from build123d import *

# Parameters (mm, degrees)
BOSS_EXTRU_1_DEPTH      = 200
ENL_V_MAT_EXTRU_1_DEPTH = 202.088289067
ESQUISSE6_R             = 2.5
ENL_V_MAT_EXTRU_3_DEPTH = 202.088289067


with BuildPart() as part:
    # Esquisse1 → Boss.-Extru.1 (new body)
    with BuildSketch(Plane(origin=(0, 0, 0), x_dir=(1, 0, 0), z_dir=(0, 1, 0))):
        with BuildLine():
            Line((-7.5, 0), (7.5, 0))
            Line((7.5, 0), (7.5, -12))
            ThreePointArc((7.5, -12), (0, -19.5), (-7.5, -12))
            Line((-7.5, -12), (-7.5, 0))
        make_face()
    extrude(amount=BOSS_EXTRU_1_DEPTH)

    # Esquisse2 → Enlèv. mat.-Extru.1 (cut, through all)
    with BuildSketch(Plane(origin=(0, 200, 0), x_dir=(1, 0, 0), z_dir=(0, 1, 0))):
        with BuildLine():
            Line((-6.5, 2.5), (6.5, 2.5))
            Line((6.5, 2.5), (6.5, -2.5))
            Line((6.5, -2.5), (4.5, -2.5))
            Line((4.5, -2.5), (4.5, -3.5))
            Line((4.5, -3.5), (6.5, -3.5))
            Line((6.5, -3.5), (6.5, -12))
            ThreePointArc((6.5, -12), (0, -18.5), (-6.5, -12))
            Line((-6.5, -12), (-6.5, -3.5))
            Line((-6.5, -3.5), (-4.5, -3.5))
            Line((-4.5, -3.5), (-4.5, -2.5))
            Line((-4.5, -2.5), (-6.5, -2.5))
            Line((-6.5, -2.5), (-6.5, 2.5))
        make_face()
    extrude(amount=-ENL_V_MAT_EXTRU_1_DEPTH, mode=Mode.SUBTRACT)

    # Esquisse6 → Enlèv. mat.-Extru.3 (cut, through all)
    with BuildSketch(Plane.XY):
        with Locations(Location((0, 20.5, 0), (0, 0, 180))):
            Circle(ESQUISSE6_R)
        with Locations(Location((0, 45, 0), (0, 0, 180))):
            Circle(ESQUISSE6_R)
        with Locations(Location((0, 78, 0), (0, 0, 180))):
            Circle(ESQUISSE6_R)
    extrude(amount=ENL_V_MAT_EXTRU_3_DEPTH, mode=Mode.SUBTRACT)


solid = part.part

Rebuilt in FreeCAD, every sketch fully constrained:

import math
import FreeCAD as App
import Part
import Sketcher

V = App.Vector
Q = App.Units.Quantity

doc = App.newDocument("Part")
body = doc.addObject("PartDesign::Body", "Body")

# Sketch on XZ plane
sketch1 = body.newObject("Sketcher::SketchObject", "Sketch")
sketch1.AttachmentSupport = (doc.getObject("XZ_Plane"), [""])
sketch1.MapMode = "FlatFace"
sketch1.addGeometry(Part.LineSegment(V(8, 0, 0), V(-8, 0, 0)), False)
sketch1.addGeometry(Part.LineSegment(V(-8, 0, 0), V(-8, 12, 0)), False)
sketch1.addGeometry(Part.ArcOfCircle(Part.Circle(V(0, 12, 0), V(0, 0, 1), 8), math.radians(0), math.radians(180)), False)
sketch1.addGeometry(Part.LineSegment(V(8, 12, 0), V(8, 0, 0)), False)
sketch1.addConstraint(Sketcher.Constraint("Coincident", 0, 2, 1, 1))
sketch1.addConstraint(Sketcher.Constraint("Tangent", 1, 2, 2, 2))
sketch1.addConstraint(Sketcher.Constraint("Tangent", 2, 1, 3, 1))
sketch1.addConstraint(Sketcher.Constraint("Coincident", 3, 2, 0, 1))
sketch1.addConstraint(Sketcher.Constraint("Horizontal", 0))
sketch1.addConstraint(Sketcher.Constraint("Vertical", 1))
sketch1.addConstraint(Sketcher.Constraint("Vertical", 3))
sketch1.addConstraint(Sketcher.Constraint("Symmetric", 0, 2, 3, 2, -1, 1))
sketch1.addConstraint(Sketcher.Constraint("Radius", 2, Q("7.5 mm")))
sketch1.addConstraint(Sketcher.Constraint("DistanceY", 1, 1, 1, 2, Q("12 mm")))
pad1 = body.newObject("PartDesign::Pad", "Pad")
pad1.Profile = sketch1
pad1.Length = 200
pad1.Reversed = True

# Sketch on XZ plane
sketch2 = body.newObject("Sketcher::SketchObject", "Sketch001")
sketch2.AttachmentSupport = (doc.getObject("XZ_Plane"), [""])
sketch2.MapMode = "FlatFace"
sketch2.AttachmentOffset = App.Placement(V(0, 0, -200), App.Rotation())
sketch2.addGeometry(Part.LineSegment(V(6.5, -2.5, 0), V(-6.5, -2.5, 0)), False)
sketch2.addGeometry(Part.LineSegment(V(-6.5, -2.5, 0), V(-6.5, 2.5, 0)), False)
sketch2.addGeometry(Part.LineSegment(V(-6.5, 2.5, 0), V(-4.5, 2.5, 0)), False)
sketch2.addGeometry(Part.LineSegment(V(-4.5, 2.5, 0), V(-4.5, 3.5, 0)), False)
sketch2.addGeometry(Part.LineSegment(V(-4.5, 3.5, 0), V(-6.5, 3.5, 0)), False)
sketch2.addGeometry(Part.LineSegment(V(-6.5, 3.5, 0), V(-6.5, 12, 0)), False)
sketch2.addGeometry(Part.ArcOfCircle(Part.Circle(V(0, 12, 0), V(0, 0, 1), 6.5), math.radians(0), math.radians(180)), False)
sketch2.addGeometry(Part.LineSegment(V(6.5, 12, 0), V(6.5, 3.5, 0)), False)
sketch2.addGeometry(Part.LineSegment(V(6.5, 3.5, 0), V(4.5, 3.5, 0)), False)
sketch2.addGeometry(Part.LineSegment(V(4.5, 3.5, 0), V(4.5, 2.5, 0)), False)
sketch2.addGeometry(Part.LineSegment(V(4.5, 2.5, 0), V(6.5, 2.5, 0)), False)
sketch2.addGeometry(Part.LineSegment(V(6.5, 2.5, 0), V(6.5, -2.5, 0)), False)
sketch2.addConstraint(Sketcher.Constraint("Coincident", 0, 2, 1, 1))
sketch2.addConstraint(Sketcher.Constraint("Coincident", 1, 2, 2, 1))
sketch2.addConstraint(Sketcher.Constraint("Coincident", 2, 2, 3, 1))
sketch2.addConstraint(Sketcher.Constraint("Coincident", 3, 2, 4, 1))
sketch2.addConstraint(Sketcher.Constraint("Coincident", 4, 2, 5, 1))
sketch2.addConstraint(Sketcher.Constraint("Tangent", 5, 2, 6, 2))
sketch2.addConstraint(Sketcher.Constraint("Tangent", 6, 1, 7, 1))
sketch2.addConstraint(Sketcher.Constraint("Coincident", 7, 2, 8, 1))
sketch2.addConstraint(Sketcher.Constraint("Coincident", 8, 2, 9, 1))
sketch2.addConstraint(Sketcher.Constraint("Coincident", 9, 2, 10, 1))
sketch2.addConstraint(Sketcher.Constraint("Coincident", 10, 2, 11, 1))
sketch2.addConstraint(Sketcher.Constraint("Coincident", 11, 2, 0, 1))
sketch2.addConstraint(Sketcher.Constraint("Horizontal", 0))
sketch2.addConstraint(Sketcher.Constraint("Vertical", 1))
sketch2.addConstraint(Sketcher.Constraint("Horizontal", 2))
sketch2.addConstraint(Sketcher.Constraint("Vertical", 3))
sketch2.addConstraint(Sketcher.Constraint("Horizontal", 4))
sketch2.addConstraint(Sketcher.Constraint("Vertical", 5))
sketch2.addConstraint(Sketcher.Constraint("Vertical", 7))
sketch2.addConstraint(Sketcher.Constraint("Horizontal", 8))
sketch2.addConstraint(Sketcher.Constraint("Vertical", 9))
sketch2.addConstraint(Sketcher.Constraint("Horizontal", 10))
sketch2.addConstraint(Sketcher.Constraint("Vertical", 11))
sketch2.addConstraint(Sketcher.Constraint("Symmetric", 0, 2, 10, 2, -1, 1))
sketch2.addConstraint(Sketcher.Constraint("Symmetric", 4, 2, 7, 2, -2))
sketch2.addConstraint(Sketcher.Constraint("Symmetric", 2, 2, 9, 2, -2))
sketch2.addConstraint(Sketcher.Constraint("Vertical", 1, 2, 4, 2))
sketch2.addConstraint(Sketcher.Constraint("Radius", 6, Q("6.5 mm")))
sketch2.addConstraint(Sketcher.Constraint("DistanceX", 2, 1, 2, 2, Q("2 mm")))
sketch2.addConstraint(Sketcher.Constraint("DistanceY", 1, 1, 1, 2, Q("5 mm")))
sketch2.addConstraint(Sketcher.Constraint("DistanceY", 3, 1, 3, 2, Q("1 mm")))
sketch2.addConstraint(Sketcher.Constraint("DistanceY", 5, 1, 5, 2, Q("8.5 mm")))
pocket1 = body.newObject("PartDesign::Pocket", "Pocket")
pocket1.Profile = sketch2
pocket1.Type = "ThroughAll"
pocket1.Reversed = True

# Sketch on XY plane
sketch3 = body.newObject("Sketcher::SketchObject", "Sketch002")
sketch3.AttachmentSupport = (doc.getObject("XY_Plane"), [""])
sketch3.MapMode = "FlatFace"
sketch3.addGeometry(Part.Circle(V(0, 20.5, 0), V(0, 0, 1), 2.5), False)
sketch3.addGeometry(Part.Circle(V(0, 45, 0), V(0, 0, 1), 2.5), False)
sketch3.addGeometry(Part.Circle(V(0, 78, 0), V(0, 0, 1), 2.5), False)
sketch3.addConstraint(Sketcher.Constraint("Equal", 0, 1))
sketch3.addConstraint(Sketcher.Constraint("Equal", 1, 2))
sketch3.addConstraint(Sketcher.Constraint("PointOnObject", 0, 3, -2))
sketch3.addConstraint(Sketcher.Constraint("PointOnObject", 1, 3, -2))
sketch3.addConstraint(Sketcher.Constraint("PointOnObject", 2, 3, -2))
sketch3.addConstraint(Sketcher.Constraint("Diameter", 0, Q("5 mm")))
sketch3.addConstraint(Sketcher.Constraint("DistanceY", -1, 1, 1, 3, Q("45 mm")))
sketch3.addConstraint(Sketcher.Constraint("DistanceY", -1, 1, 2, 3, Q("78 mm")))
sketch3.addConstraint(Sketcher.Constraint("DistanceY", -1, 1, 0, 3, Q("20.5 mm")))
pocket2 = body.newObject("PartDesign::Pocket", "Pocket001")
pocket2.Profile = sketch3
pocket2.Type = "ThroughAll"
pocket2.Reversed = True

doc.recompute()
